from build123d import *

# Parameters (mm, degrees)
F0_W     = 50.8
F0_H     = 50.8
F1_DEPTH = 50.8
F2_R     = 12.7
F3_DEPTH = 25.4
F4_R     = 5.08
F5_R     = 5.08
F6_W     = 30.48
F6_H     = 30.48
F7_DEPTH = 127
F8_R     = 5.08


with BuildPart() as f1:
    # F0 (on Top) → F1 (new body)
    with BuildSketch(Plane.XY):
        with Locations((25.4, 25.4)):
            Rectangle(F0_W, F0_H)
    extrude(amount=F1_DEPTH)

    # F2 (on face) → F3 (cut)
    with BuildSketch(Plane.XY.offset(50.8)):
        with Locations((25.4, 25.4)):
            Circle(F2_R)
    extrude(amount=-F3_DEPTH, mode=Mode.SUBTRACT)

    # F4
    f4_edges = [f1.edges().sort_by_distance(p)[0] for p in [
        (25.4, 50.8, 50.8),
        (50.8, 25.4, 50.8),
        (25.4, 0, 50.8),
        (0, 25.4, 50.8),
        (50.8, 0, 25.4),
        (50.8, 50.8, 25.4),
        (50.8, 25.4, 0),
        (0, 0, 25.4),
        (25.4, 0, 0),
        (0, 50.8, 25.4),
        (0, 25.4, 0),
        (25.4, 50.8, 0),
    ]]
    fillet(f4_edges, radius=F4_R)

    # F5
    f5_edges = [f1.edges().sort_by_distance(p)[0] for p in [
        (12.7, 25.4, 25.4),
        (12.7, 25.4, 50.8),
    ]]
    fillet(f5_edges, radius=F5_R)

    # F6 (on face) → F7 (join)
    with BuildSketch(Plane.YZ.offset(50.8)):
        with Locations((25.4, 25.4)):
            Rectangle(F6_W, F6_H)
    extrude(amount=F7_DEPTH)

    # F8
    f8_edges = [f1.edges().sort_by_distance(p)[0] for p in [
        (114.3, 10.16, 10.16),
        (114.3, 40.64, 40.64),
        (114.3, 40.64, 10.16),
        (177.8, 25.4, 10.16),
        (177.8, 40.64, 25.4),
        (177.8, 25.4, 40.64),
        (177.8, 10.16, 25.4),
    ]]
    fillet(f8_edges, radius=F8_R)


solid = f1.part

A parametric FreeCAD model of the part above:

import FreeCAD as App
import Part
import Sketcher
from FreeCAD import Vector
Q = App.Units.Quantity


def edges_at(feature, points):
    """Names of the edges that pass closest to the given points."""
    edges = feature.Shape.Edges
    near = lambda p: min(range(len(edges)), key=lambda i: edges[i].distToShape(Part.Vertex(*p))[0])
    return sorted({f"Edge{near(p) + 1}" for p in points})


def add_polygon(sketch, points):
    """Adds a closed chain of lines whose ends are joined by coincident constraints."""
    first, n = sketch.GeometryCount, len(points)
    for a, b in zip(points, points[1:] + points[:1]):
        sketch.addGeometry(Part.LineSegment(App.Vector(*a, 0), App.Vector(*b, 0)), False)
    for i in range(n):
        sketch.addConstraint(Sketcher.Constraint("Coincident", first + i, 2, first + (i + 1) % n, 1))

doc = App.newDocument("Part")
body = doc.addObject("PartDesign::Body", "Body")

sketch1 = body.newObject("Sketcher::SketchObject", "Sketch")
sketch1.AttachmentSupport = (doc.getObject("XY_Plane"), [""])
sketch1.MapMode = "FlatFace"
add_polygon(sketch1, [(0, 51), (0, 0), (51, 0), (51, 51)])
sketch1.addConstraint(Sketcher.Constraint("Vertical", 0))
sketch1.addConstraint(Sketcher.Constraint("Horizontal", 1))
sketch1.addConstraint(Sketcher.Constraint("Vertical", 2))
sketch1.addConstraint(Sketcher.Constraint("Horizontal", 3))
sketch1.addConstraint(Sketcher.Constraint("Coincident", 0, 2, -1, 1))
sketch1.addConstraint(Sketcher.Constraint("Equal", 3, 0))
sketch1.addConstraint(Sketcher.Constraint("DistanceX", 1, 1, 1, 2, Q("2 in")))
pad1 = body.newObject("PartDesign::Pad", "Pad")
pad1.Profile = sketch1
pad1.Length = Q("2 in")

sketch2 = body.newObject("Sketcher::SketchObject", "Sketch001")
sketch2.AttachmentSupport = (doc.getObject("XY_Plane"), [""])
sketch2.MapMode = "FlatFace"
sketch2.AttachmentOffset = App.Placement(Vector(0, 0, 2 * 25.4), App.Rotation())
sketch2.addGeometry(Part.Circle(Vector(25, 25, 0), Vector(0, 0, 1), 13), False)
sketch2.addConstraint(Sketcher.Constraint("Diameter", 0, Q("1 in")))
sketch2.addConstraint(Sketcher.Constraint("DistanceX", -1, 1, 0, 3, Q("1 in")))
sketch2.addConstraint(Sketcher.Constraint("DistanceY", -1, 1, 0, 3, Q("1 in")))
pocket1 = body.newObject("PartDesign::Pocket", "Pocket")
pocket1.Profile = sketch2
pocket1.Length = Q("1 in")
doc.recompute()

fillet = body.newObject("PartDesign::Fillet", "Fillet")
fillet.Base = (pocket1, edges_at(pocket1, [
    (25.4, 50.8, 50.8),
    (50.8, 25.4, 50.8),
    (25.4, 0, 50.8),
    (0, 25.4, 50.8),
    (50.8, 0, 25.4),
    (50.8, 50.8, 25.4),
    (50.8, 25.4, 0),
    (0, 0, 25.4),
    (25.4, 0, 0),
    (0, 50.8, 25.4),
    (0, 25.4, 0),
    (25.4, 50.8, 0),
]))
fillet.Radius = Q("0.2 in")
doc.recompute()

fillet2 = body.newObject("PartDesign::Fillet", "Fillet001")
fillet2.Base = (fillet, edges_at(fillet, [(12.7, 25.4, 25.4), (12.7, 25.4, 50.8)]))
fillet2.Radius = Q("0.2 in")

sketch3 = body.newObject("Sketcher::SketchObject", "Sketch002")
sketch3.AttachmentSupport = (doc.getObject("YZ_Plane"), [""])
sketch3.MapMode = "FlatFace"
sketch3.AttachmentOffset = App.Placement(Vector(0, 0, 2 * 25.4), App.Rotation())
add_polygon(sketch3, [(10, 41), (10, 10), (41, 10), (41, 41)])
sketch3.addConstraint(Sketcher.Constraint("Vertical", 0))
sketch3.addConstraint(Sketcher.Constraint("Horizontal", 1))
sketch3.addConstraint(Sketcher.Constraint("Vertical", 2))
sketch3.addConstraint(Sketcher.Constraint("Horizontal", 3))
sketch3.addConstraint(Sketcher.Constraint("Equal", 3, 0))
sketch3.addConstraint(Sketcher.Constraint("DistanceX", 1, 1, 1, 2, Q("1.2 in")))
sketch3.addConstraint(Sketcher.Constraint("DistanceX", -1, 1, 0, 2, Q("0.4 in")))
sketch3.addConstraint(Sketcher.Constraint("DistanceY", -1, 1, 0, 2, Q("0.4 in")))
pad2 = body.newObject("PartDesign::Pad", "Pad001")
pad2.Profile = sketch3
pad2.Length = Q("5 in")
doc.recompute()

fillet3 = body.newObject("PartDesign::Fillet", "Fillet002")
fillet3.Base = (pad2, edges_at(pad2, [
    (114.3, 10.16, 10.16),
    (114.3, 40.64, 40.64),
    (114.3, 40.64, 10.16),
    (177.8, 25.4, 10.16),
    (177.8, 40.64, 25.4),
    (177.8, 25.4, 40.64),
    (177.8, 10.16, 25.4),
]))
fillet3.Radius = Q("0.2 in")

doc.recompute()
